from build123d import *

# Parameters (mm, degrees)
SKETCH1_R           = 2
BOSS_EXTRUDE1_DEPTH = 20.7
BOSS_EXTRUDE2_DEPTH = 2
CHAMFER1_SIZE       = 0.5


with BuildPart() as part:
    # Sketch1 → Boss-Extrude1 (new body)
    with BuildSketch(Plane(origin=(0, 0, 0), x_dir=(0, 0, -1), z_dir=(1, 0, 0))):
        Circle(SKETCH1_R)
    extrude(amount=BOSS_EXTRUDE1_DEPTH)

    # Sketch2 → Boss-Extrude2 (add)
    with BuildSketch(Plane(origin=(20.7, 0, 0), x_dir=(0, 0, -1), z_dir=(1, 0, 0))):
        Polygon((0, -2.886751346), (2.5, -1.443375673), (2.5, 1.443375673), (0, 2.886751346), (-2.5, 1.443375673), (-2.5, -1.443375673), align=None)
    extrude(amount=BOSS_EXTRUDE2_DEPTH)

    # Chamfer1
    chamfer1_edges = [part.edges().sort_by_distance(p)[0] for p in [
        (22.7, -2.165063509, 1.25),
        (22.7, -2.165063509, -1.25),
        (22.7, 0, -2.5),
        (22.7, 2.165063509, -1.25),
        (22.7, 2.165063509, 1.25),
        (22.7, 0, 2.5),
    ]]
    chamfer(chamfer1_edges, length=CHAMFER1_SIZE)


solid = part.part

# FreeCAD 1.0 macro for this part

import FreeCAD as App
import Part
import Sketcher

V = App.Vector
Q = App.Units.Quantity


def edges_at(feature, points):
    """Names of the edges that pass closest to the given points."""
    edges = feature.Shape.Edges
    near = lambda p: min(range(len(edges)), key=lambda i: edges[i].distToShape(Part.Vertex(*p))[0])
    return sorted({f"Edge{near(p) + 1}" for p in points})

doc = App.newDocument("Part")
body = doc.addObject("PartDesign::Body", "Body")

# Sketch on YZ plane
sketch1 = body.newObject("Sketcher::SketchObject", "Sketch")
sketch1.AttachmentSupport = (doc.getObject("YZ_Plane"), [""])
sketch1.MapMode = "FlatFace"
sketch1.addGeometry(Part.Circle(V(0, 0, 0), V(0, 0, 1), 2), False)
sketch1.addConstraint(Sketcher.Constraint("Coincident", 0, 3, -1, 1))
sketch1.addConstraint(Sketcher.Constraint("Diameter", 0, 4.0))
pad1 = body.newObject("PartDesign::Pad", "Pad")
pad1.Profile = sketch1
pad1.Length = 20.7

# Sketch on YZ plane
sketch2 = body.newObject("Sketcher::SketchObject", "Sketch001")
sketch2.AttachmentSupport = (doc.getObject("YZ_Plane"), [""])
sketch2.MapMode = "FlatFace"
sketch2.AttachmentOffset = App.Placement(V(0, 0, 20.7), App.Rotation())
sketch2.addGeometry(Part.LineSegment(V(-2.886751, 0, 0), V(-1.443376, -2.5, 0)), False)
sketch2.addGeometry(Part.LineSegment(V(-1.443376, -2.5, 0), V(1.443376, -2.5, 0)), False)
sketch2.addGeometry(Part.LineSegment(V(1.443376, -2.5, 0), V(2.886751, 0, 0)), False)
sketch2.addGeometry(Part.LineSegment(V(2.886751, 0, 0), V(1.443376, 2.5, 0)), False)
sketch2.addGeometry(Part.LineSegment(V(1.443376, 2.5, 0), V(-1.443376, 2.5, 0)), False)
sketch2.addGeometry(Part.LineSegment(V(-1.443376, 2.5, 0), V(-2.886751, 0, 0)), False)
sketch2.addConstraint(Sketcher.Constraint("Coincident", 0, 2, 1, 1))
sketch2.addConstraint(Sketcher.Constraint("Coincident", 1, 2, 2, 1))
sketch2.addConstraint(Sketcher.Constraint("Coincident", 2, 2, 3, 1))
sketch2.addConstraint(Sketcher.Constraint("Coincident", 3, 2, 4, 1))
sketch2.addConstraint(Sketcher.Constraint("Coincident", 4, 2, 5, 1))
sketch2.addConstraint(Sketcher.Constraint("Coincident", 5, 2, 0, 1))
sketch2.addConstraint(Sketcher.Constraint("Horizontal", 1))
sketch2.addConstraint(Sketcher.Constraint("Horizontal", 4))
sketch2.addConstraint(Sketcher.Constraint("Symmetric", 0, 2, 3, 2, -1, 1))
sketch2.addConstraint(Sketcher.Constraint("Symmetric", 2, 2, 5, 2, -1, 1))
sketch2.addConstraint(Sketcher.Constraint("PointOnObject", 2, 2, -1))
sketch2.addConstraint(Sketcher.Constraint("Parallel", 2, 5))
sketch2.addConstraint(Sketcher.Constraint("Vertical", 1, 2, 3, 2))
sketch2.addConstraint(Sketcher.Constraint("Angle", 0, Q("-60 deg")))
sketch2.addConstraint(Sketcher.Constraint("DistanceY", 1, 2, 3, 2, 5.0))
sketch2.addConstraint(Sketcher.Constraint("DistanceX", 1, 1, 1, 2, 2.886751))
pad2 = body.newObject("PartDesign::Pad", "Pad001")
pad2.Profile = sketch2
pad2.Length = 2
doc.recompute()

chamfer = body.newObject("PartDesign::Chamfer", "Chamfer")
chamfer.Base = (pad2, edges_at(pad2, [
    (22.7, -2.165, 1.25),
    (22.7, -2.165, -1.25),
    (22.7, 0, -2.5),
    (22.7, 2.165, -1.25),
    (22.7, 2.165, 1.25),
    (22.7, 0, 2.5),
]))
chamfer.Size = 0.5

doc.recompute()
